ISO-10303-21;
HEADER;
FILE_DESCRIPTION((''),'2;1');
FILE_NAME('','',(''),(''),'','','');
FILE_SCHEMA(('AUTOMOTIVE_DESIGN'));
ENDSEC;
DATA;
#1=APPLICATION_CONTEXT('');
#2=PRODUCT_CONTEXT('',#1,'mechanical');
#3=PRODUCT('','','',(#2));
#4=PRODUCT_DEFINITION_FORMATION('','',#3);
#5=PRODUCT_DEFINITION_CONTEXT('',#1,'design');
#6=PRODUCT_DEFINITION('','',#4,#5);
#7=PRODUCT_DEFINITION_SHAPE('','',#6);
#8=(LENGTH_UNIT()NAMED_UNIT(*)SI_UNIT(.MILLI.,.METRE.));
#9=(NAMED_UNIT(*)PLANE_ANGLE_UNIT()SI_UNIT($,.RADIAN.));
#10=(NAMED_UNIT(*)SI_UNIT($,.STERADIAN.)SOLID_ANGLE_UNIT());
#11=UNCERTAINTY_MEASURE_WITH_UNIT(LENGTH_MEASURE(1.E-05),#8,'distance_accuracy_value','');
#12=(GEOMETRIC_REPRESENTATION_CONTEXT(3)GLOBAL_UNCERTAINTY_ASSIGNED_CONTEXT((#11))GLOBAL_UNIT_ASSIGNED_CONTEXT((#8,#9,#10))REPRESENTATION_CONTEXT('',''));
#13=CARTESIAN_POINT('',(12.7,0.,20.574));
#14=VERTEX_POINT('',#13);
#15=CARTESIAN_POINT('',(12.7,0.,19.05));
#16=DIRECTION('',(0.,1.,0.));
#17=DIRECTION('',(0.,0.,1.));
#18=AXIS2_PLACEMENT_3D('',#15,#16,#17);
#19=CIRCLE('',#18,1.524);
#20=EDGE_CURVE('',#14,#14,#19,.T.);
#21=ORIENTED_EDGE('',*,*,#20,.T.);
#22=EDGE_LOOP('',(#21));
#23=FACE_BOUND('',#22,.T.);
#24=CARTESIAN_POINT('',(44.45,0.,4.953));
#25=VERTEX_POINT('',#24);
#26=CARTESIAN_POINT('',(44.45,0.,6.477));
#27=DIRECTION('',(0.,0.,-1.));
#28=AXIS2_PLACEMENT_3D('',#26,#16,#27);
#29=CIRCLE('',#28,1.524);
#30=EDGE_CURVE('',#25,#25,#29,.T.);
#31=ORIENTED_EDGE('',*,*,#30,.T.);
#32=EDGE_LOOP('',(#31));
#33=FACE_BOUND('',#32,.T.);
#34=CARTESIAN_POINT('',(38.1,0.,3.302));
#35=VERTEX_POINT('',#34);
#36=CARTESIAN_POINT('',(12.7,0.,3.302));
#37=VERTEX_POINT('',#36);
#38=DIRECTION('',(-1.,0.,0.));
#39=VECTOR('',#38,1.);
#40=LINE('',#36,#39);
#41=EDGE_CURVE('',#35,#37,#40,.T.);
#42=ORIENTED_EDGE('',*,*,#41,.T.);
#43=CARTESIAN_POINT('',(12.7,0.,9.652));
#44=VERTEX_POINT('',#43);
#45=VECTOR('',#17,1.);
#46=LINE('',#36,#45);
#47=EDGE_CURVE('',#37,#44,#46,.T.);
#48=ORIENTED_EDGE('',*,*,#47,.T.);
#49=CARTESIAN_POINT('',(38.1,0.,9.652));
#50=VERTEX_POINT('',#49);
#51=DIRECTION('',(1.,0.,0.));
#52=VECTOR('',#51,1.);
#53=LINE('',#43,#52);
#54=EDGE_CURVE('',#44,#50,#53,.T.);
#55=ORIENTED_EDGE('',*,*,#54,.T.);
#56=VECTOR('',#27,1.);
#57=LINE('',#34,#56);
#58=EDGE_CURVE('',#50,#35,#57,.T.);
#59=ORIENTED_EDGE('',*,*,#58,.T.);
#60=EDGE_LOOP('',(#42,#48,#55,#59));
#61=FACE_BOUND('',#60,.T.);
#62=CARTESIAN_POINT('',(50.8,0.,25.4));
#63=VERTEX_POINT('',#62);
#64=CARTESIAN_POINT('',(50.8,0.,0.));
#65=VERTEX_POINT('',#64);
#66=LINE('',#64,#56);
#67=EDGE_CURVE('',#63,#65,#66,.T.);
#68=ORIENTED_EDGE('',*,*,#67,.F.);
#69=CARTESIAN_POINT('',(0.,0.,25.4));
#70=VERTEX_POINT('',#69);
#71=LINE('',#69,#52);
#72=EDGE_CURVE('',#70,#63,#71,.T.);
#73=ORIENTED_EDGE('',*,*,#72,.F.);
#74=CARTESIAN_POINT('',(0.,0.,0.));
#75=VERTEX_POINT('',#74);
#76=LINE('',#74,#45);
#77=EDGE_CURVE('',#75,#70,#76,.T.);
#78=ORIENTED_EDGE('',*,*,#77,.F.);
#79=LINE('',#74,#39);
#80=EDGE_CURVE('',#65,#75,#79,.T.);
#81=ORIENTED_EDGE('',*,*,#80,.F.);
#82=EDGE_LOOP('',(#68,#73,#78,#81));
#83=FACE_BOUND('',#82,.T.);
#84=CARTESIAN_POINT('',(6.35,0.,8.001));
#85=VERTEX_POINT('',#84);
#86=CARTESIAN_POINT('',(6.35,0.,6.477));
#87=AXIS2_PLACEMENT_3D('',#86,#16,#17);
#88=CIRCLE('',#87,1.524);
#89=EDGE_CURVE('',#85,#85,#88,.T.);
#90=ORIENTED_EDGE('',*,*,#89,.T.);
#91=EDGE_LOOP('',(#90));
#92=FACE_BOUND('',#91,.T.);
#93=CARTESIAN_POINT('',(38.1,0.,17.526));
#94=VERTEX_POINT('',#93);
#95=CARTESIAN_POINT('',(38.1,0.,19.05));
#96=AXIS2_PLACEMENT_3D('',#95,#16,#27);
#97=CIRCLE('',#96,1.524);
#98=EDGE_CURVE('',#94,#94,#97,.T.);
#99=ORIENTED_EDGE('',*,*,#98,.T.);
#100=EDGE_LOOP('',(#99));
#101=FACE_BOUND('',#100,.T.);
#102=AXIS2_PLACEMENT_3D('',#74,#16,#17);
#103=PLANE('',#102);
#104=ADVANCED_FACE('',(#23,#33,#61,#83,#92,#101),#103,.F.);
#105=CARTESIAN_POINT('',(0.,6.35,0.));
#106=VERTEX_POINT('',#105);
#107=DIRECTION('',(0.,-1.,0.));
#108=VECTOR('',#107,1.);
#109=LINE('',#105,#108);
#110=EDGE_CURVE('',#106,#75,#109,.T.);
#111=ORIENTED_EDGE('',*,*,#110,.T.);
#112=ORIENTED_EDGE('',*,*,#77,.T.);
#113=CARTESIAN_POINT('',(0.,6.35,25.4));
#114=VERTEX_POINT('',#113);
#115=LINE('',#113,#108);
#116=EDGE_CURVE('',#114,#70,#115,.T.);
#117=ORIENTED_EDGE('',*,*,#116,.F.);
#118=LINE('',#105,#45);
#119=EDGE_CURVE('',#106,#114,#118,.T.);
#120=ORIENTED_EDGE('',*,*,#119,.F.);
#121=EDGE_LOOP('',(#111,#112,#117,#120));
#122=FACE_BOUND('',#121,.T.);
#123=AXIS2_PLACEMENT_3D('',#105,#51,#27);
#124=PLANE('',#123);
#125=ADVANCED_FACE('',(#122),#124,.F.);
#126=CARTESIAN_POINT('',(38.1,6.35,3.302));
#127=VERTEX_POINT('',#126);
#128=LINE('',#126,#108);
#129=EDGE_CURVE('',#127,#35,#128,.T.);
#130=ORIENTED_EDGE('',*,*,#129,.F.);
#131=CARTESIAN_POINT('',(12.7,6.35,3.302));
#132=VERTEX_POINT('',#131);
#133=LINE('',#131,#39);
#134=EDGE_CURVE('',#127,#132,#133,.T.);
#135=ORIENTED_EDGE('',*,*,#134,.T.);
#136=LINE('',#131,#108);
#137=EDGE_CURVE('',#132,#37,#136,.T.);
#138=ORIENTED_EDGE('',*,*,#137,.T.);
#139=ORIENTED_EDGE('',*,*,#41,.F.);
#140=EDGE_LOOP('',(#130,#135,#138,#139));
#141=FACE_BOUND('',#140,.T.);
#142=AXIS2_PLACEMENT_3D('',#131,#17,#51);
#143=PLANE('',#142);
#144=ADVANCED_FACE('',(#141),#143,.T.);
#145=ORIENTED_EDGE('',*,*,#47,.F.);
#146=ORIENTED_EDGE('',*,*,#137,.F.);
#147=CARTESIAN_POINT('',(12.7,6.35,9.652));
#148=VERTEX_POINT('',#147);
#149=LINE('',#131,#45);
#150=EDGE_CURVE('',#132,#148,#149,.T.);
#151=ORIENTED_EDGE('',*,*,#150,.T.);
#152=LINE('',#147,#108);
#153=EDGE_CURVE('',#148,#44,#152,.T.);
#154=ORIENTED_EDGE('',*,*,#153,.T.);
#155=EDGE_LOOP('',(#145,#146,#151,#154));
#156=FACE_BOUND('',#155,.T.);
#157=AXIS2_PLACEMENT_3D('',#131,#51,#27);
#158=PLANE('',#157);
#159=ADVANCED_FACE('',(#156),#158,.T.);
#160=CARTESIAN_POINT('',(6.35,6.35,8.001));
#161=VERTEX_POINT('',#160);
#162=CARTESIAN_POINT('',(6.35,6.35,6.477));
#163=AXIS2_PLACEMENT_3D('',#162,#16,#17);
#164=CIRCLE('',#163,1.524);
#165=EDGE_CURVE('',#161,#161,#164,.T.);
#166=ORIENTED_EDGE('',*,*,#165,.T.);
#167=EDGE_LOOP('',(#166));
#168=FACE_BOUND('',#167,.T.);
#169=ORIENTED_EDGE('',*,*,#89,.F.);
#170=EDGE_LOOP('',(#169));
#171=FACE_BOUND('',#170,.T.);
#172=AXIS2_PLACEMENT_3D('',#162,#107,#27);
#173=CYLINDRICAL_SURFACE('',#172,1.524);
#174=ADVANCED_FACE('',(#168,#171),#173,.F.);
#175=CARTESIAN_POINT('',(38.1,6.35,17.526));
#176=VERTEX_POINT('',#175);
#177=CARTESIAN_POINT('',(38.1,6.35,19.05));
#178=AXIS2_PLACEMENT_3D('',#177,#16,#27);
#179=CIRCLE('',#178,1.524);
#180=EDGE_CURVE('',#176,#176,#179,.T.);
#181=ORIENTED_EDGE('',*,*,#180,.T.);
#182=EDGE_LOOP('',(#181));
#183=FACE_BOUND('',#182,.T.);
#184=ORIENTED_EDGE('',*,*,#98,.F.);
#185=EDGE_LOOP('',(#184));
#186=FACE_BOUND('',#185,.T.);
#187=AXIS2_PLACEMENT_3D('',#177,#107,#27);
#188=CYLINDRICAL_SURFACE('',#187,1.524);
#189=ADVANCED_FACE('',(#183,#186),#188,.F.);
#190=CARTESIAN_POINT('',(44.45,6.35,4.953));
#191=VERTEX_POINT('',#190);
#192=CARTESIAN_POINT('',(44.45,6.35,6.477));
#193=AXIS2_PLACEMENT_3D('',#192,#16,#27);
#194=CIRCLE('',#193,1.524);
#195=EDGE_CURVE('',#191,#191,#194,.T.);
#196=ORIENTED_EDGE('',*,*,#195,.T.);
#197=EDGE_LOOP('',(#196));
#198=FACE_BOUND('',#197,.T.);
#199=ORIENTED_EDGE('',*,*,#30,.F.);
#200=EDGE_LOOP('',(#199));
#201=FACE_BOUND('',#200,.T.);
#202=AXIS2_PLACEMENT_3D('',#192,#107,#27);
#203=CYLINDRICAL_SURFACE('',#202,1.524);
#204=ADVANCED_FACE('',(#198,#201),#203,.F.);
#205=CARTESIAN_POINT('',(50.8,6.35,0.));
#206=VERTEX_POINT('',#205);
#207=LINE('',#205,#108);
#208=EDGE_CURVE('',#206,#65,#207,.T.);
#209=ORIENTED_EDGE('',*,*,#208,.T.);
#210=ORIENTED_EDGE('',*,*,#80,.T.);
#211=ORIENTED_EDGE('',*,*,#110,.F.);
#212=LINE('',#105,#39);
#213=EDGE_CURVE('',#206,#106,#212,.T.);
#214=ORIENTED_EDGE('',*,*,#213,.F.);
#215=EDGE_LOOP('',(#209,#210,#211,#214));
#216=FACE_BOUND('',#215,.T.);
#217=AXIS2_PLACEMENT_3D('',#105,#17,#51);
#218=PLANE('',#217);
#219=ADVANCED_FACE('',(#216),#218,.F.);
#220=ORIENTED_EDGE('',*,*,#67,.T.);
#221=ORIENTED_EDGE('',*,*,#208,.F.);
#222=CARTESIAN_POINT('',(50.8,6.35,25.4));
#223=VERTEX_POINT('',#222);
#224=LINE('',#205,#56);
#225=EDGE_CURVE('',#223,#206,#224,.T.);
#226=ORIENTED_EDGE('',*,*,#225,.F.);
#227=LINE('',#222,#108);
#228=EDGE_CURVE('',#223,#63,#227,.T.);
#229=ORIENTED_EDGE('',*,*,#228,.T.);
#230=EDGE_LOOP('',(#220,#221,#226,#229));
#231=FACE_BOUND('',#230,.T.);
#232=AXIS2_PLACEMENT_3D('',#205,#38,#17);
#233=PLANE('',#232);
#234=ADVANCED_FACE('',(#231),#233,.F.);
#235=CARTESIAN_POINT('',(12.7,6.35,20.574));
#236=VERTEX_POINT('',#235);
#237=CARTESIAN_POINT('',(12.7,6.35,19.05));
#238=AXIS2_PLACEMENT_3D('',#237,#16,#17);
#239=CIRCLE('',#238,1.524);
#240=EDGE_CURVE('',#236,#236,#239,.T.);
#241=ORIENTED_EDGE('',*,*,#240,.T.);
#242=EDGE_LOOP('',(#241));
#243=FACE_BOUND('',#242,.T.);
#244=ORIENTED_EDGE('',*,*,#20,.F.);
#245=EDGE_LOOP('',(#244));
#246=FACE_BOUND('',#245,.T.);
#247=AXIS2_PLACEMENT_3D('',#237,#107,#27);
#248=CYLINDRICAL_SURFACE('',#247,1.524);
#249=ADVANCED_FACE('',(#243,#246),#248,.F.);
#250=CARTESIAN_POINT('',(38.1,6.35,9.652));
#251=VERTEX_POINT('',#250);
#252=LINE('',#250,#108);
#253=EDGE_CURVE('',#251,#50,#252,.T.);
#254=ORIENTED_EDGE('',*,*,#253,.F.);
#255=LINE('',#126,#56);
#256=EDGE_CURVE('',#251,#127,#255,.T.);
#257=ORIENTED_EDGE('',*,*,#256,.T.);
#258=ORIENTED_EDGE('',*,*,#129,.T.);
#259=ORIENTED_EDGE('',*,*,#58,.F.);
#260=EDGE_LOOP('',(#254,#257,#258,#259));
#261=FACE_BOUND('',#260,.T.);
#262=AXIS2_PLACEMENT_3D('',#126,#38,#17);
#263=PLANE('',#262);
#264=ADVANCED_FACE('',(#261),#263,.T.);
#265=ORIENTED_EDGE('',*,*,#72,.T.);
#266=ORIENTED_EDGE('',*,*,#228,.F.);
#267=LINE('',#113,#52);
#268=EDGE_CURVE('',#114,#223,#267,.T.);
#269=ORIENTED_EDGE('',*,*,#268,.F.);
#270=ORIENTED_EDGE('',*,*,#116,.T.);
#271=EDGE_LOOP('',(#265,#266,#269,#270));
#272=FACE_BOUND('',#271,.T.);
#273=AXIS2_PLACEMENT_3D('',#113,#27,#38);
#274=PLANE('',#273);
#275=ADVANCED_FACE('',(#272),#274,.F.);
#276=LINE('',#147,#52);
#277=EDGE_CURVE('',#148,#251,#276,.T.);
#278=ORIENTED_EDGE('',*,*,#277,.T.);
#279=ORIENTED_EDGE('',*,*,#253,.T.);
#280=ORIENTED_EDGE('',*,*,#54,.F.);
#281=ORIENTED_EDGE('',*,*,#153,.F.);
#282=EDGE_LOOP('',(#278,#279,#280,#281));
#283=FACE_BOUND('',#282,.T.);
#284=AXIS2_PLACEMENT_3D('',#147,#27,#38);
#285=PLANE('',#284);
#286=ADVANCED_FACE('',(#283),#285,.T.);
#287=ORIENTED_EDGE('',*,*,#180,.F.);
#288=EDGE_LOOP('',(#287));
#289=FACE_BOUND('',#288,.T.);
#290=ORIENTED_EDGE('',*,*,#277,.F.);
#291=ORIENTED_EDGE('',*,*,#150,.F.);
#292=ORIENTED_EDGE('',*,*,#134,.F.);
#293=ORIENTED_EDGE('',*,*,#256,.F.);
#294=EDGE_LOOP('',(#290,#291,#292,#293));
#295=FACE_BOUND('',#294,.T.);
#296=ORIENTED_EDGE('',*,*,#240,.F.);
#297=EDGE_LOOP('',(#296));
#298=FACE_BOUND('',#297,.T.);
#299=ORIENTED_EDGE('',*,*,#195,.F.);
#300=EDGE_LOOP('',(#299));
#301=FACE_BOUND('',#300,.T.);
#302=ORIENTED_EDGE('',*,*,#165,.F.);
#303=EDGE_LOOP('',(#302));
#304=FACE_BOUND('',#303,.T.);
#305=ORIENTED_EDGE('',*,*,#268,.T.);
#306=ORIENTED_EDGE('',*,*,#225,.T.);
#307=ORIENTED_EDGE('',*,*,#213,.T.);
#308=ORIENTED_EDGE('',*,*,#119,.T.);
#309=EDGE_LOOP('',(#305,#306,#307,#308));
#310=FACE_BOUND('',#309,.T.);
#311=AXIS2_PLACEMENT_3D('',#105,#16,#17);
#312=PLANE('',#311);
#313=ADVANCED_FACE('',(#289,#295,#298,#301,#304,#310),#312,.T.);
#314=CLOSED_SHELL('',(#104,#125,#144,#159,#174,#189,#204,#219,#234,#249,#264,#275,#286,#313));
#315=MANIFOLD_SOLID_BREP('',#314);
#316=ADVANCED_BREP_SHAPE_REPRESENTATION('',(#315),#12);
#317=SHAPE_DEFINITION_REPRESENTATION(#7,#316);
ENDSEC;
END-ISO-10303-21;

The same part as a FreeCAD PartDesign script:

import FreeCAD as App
import Part
import Sketcher
from FreeCAD import Vector
Q = App.Units.Quantity


def add_polygon(sketch, points):
    """Adds a closed chain of lines whose ends are joined by coincident constraints."""
    first, n = sketch.GeometryCount, len(points)
    for a, b in zip(points, points[1:] + points[:1]):
        sketch.addGeometry(Part.LineSegment(App.Vector(*a, 0), App.Vector(*b, 0)), False)
    for i in range(n):
        sketch.addConstraint(Sketcher.Constraint("Coincident", first + i, 2, first + (i + 1) % n, 1))

doc = App.newDocument("Part")
body = doc.addObject("PartDesign::Body", "Body")

sketch1 = doc.addObject("Sketcher::SketchObject", "Sketch")
body.addObject(sketch1)
sketch1.AttachmentSupport = (doc.XZ_Plane, [""])
sketch1.MapMode = "FlatFace"
add_polygon(sketch1, [(0, 0), (0, 25.4), (50.8, 25.4), (50.8, 0)])
sketch1.addGeometry(Part.Circle(Vector(12.7, 19.1, 0), Vector(0, 0, 1), 1.5), False)
sketch1.addGeometry(Part.Circle(Vector(38.1, 19.1, 0), Vector(0, 0, 1), 1.5), False)
sketch1.addGeometry(Part.Circle(Vector(6.3, 6.5, 0), Vector(0, 0, 1), 1.5), False)
add_polygon(sketch1, [(38.1, 9.7), (12.7, 9.7), (12.7, 3.3), (38.1, 3.3)])
sketch1.addGeometry(Part.Circle(Vector(44.5, 6.5, 0), Vector(0, 0, 1), 1.5), False)
sketch1.addConstraint([
    Sketcher.Constraint("Vertical", 0),
    Sketcher.Constraint("Horizontal", 1),
    Sketcher.Constraint("Vertical", 2),
    Sketcher.Constraint("Horizontal", 3),
    Sketcher.Constraint("Horizontal", 7),
    Sketcher.Constraint("Vertical", 8),
    Sketcher.Constraint("Horizontal", 9),
    Sketcher.Constraint("Vertical", 10),
    Sketcher.Constraint("Coincident", 3, 2, -1, 1),
    Sketcher.Constraint("Equal", 4, 5),
    Sketcher.Constraint("Equal", 5, 6),
    Sketcher.Constraint("Equal", 6, 11),
    Sketcher.Constraint("Horizontal", 4, 3, 5, 3),
    Sketcher.Constraint("Horizontal", 6, 3, 11, 3),
    Sketcher.Constraint("Vertical", 4, 3, 7, 2),
    Sketcher.Constraint("Vertical", 5, 3, 9, 2),
    Sketcher.Constraint("Equal", 9, 0),
    Sketcher.Constraint("Diameter", 4, Q("0.12 in")),
    Sketcher.Constraint("DistanceX", 1, 1, 1, 2, Q("2 in")),
    Sketcher.Constraint("DistanceX", 7, 2, 7, 1, Q("1 in")),
    Sketcher.Constraint("DistanceY", 8, 2, 8, 1, Q("0.25 in")),
    Sketcher.Constraint("DistanceX", -1, 1, 4, 3, Q("0.5 in")),
    Sketcher.Constraint("DistanceX", 6, 3, 11, 3, Q("1.5 in")),
    Sketcher.Constraint("DistanceY", -1, 1, 4, 3, Q("0.75 in")),
    Sketcher.Constraint("DistanceX", -1, 1, 6, 3, Q("0.25 in")),
    Sketcher.Constraint("DistanceY", -1, 1, 7, 2, Q("0.38 in")),
    Sketcher.Constraint("DistanceY", -1, 1, 6, 3, Q("0.255 in")),
])
pad1 = doc.addObject("PartDesign::Pad", "Pad")
body.addObject(pad1)
pad1.Profile = sketch1
pad1.Length = Q("0.25 in")
pad1.Reversed = True

doc.recompute()
